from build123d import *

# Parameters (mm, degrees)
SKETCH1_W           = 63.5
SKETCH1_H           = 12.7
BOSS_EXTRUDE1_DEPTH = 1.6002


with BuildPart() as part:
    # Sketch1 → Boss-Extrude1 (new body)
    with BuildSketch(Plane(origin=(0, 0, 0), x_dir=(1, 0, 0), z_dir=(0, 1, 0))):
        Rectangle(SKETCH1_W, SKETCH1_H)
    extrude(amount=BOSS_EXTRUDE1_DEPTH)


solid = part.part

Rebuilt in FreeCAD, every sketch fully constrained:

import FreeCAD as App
import Part
import Sketcher
from FreeCAD import Vector
Q = App.Units.Quantity

doc = App.newDocument("Part")
params = doc.addObject("Spreadsheet::Sheet", "Params")
for row, (alias, value) in enumerate([
    ("sketch1_width", "2.5 in"),
    ("sketch1_height", "0.5 in"),
    ("pad1_length", "0.063 in"),
], start=1):
    params.set(f"A{row}", alias)
    params.set(f"B{row}", "=" + value)
    params.setAlias(f"B{row}", alias)

body = doc.addObject("PartDesign::Body", "Body")

# Sketch on XZ plane
sketch1 = body.newObject("Sketcher::SketchObject", "Sketch")
sketch1.AttachmentSupport = (doc.getObject("XZ_Plane"), [""])
sketch1.MapMode = "FlatFace"
sketch1.addGeometry(Part.LineSegment(Vector(-31.75, -6.35, 0), Vector(-31.75, 6.35, 0)), False)
sketch1.addGeometry(Part.LineSegment(Vector(-31.75, 6.35, 0), Vector(31.75, 6.35, 0)), False)
sketch1.addGeometry(Part.LineSegment(Vector(31.75, 6.35, 0), Vector(31.75, -6.35, 0)), False)
sketch1.addGeometry(Part.LineSegment(Vector(31.75, -6.35, 0), Vector(-31.75, -6.35, 0)), False)
sketch1.addConstraint(Sketcher.Constraint("Coincident", 0, 2, 1, 1))
sketch1.addConstraint(Sketcher.Constraint("Coincident", 1, 2, 2, 1))
sketch1.addConstraint(Sketcher.Constraint("Coincident", 2, 2, 3, 1))
sketch1.addConstraint(Sketcher.Constraint("Coincident", 3, 2, 0, 1))
sketch1.addConstraint(Sketcher.Constraint("Vertical", 0))
sketch1.addConstraint(Sketcher.Constraint("Horizontal", 1))
sketch1.addConstraint(Sketcher.Constraint("Vertical", 2))
sketch1.addConstraint(Sketcher.Constraint("Horizontal", 3))
sketch1.addConstraint(Sketcher.Constraint("Symmetric", 0, 2, 2, 2, -1, 1))
sketch1.addConstraint(Sketcher.Constraint("DistanceX", 1, 1, 1, 2, Q("2.5 in")))
sketch1.addConstraint(Sketcher.Constraint("DistanceY", 0, 1, 0, 2, Q("0.5 in")))
sketch1.setExpression("Constraints[9]", "Params.sketch1_width")
sketch1.setExpression("Constraints[10]", "Params.sketch1_height")
pad1 = body.newObject("PartDesign::Pad", "Pad")
pad1.Profile = sketch1
pad1.setExpression("Length", "Params.pad1_length")
pad1.Reversed = True

doc.recompute()
